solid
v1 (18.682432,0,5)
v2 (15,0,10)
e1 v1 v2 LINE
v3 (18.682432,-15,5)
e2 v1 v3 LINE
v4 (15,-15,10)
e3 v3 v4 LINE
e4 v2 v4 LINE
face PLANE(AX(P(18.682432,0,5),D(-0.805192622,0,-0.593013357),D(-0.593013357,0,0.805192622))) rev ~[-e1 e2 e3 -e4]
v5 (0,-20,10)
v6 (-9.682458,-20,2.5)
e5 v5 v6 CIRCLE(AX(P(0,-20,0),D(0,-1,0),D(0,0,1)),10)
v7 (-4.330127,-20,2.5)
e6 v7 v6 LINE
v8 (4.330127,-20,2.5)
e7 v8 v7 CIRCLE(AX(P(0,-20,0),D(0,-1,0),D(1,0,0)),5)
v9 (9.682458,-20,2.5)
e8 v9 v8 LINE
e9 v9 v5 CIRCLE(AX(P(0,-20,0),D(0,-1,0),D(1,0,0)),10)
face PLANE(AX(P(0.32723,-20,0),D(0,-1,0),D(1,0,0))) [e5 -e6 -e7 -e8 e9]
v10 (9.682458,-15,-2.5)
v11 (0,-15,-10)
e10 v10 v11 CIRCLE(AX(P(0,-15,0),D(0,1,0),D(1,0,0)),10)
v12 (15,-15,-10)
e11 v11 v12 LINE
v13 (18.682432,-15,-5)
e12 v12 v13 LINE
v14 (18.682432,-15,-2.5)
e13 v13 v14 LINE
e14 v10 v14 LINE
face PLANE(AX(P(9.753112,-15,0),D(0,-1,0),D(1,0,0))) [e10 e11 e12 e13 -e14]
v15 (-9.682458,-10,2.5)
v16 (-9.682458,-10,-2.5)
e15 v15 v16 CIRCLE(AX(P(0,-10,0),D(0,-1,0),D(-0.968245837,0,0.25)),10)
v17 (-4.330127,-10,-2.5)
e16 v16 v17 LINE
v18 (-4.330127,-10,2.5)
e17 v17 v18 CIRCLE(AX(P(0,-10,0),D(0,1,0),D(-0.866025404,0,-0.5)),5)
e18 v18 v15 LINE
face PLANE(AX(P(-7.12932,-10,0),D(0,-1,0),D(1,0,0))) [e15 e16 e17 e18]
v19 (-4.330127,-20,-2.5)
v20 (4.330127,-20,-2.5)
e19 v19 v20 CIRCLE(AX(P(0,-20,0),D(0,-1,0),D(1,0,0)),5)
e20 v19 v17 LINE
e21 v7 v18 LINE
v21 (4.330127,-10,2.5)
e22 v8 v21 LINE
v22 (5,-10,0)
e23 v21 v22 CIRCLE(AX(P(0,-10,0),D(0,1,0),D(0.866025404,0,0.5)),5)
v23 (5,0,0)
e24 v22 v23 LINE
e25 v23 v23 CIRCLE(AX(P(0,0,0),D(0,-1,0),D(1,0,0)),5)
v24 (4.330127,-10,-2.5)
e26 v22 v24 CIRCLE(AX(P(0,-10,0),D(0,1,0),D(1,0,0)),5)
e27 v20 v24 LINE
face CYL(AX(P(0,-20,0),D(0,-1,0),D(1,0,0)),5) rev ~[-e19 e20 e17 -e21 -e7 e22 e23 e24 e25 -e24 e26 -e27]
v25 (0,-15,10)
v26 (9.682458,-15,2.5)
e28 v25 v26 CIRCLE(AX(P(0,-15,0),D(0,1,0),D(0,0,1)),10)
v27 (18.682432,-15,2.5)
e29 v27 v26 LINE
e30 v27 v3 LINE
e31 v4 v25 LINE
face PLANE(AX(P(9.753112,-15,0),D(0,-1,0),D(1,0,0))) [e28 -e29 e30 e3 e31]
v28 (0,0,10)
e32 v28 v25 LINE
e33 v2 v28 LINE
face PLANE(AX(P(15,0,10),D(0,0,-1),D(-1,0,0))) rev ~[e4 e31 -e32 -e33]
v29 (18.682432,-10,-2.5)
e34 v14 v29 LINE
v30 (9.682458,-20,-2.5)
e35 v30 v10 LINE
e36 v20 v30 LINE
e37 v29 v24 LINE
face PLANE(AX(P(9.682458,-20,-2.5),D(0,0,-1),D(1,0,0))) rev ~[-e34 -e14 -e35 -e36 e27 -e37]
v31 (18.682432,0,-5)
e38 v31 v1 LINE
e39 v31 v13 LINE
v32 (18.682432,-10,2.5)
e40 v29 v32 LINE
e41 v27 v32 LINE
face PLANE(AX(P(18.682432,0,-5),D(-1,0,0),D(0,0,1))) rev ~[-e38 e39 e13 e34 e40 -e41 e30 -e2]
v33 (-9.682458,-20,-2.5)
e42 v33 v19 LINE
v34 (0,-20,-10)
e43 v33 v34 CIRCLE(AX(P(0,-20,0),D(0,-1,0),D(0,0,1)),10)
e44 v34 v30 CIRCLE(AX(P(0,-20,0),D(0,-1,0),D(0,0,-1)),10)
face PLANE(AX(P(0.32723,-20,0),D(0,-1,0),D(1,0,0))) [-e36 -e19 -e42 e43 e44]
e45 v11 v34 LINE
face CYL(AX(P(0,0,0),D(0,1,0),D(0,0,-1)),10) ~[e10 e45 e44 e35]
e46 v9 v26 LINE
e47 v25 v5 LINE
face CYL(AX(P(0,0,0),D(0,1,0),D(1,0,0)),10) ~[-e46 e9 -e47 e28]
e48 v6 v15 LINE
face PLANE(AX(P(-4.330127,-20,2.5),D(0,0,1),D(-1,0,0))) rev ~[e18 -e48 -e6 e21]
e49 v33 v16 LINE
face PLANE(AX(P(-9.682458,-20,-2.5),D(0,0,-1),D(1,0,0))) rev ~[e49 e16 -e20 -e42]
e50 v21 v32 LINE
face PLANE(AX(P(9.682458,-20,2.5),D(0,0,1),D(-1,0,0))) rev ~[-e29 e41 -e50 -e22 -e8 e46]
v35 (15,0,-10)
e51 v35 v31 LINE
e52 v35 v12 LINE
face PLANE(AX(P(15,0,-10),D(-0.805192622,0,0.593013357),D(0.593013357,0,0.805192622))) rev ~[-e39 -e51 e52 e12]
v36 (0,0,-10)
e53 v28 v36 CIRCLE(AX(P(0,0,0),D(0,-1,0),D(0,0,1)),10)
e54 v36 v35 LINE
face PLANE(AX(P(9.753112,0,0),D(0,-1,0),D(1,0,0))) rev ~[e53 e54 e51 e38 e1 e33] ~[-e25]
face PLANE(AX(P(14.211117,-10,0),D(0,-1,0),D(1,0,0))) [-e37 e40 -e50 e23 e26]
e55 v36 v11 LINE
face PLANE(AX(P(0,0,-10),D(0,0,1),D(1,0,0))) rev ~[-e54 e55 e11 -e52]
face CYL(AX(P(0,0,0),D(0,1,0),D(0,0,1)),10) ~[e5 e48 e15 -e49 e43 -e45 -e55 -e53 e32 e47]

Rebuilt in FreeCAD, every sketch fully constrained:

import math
import FreeCAD as App
import Part
import Sketcher
from FreeCAD import Vector

doc = App.newDocument("Part")
body = doc.addObject("PartDesign::Body", "Body")

# Sketch on XZ plane
sketch1 = body.newObject("Sketcher::SketchObject", "Sketch")
sketch1.AttachmentSupport = (doc.getObject("XZ_Plane"), [""])
sketch1.MapMode = "FlatFace"
sketch1.addGeometry([
    Part.ArcOfCircle(Part.Circle(Vector(0, 0, 0), Vector(0, 0, 1), 10), math.radians(-90), math.radians(0)),
    Part.ArcOfCircle(Part.Circle(Vector(0, 0, 0), Vector(0, 0, 1), 10), math.radians(0), math.radians(90)),
    Part.ArcOfCircle(Part.Circle(Vector(0, 0, 0), Vector(0, 0, 1), 10), math.radians(90), math.radians(270)),
], False)
sketch1.addConstraint([
    Sketcher.Constraint("Tangent", 0, 2, 1, 1),
    Sketcher.Constraint("Tangent", 1, 2, 2, 1),
    Sketcher.Constraint("Tangent", 2, 2, 0, 1),
    Sketcher.Constraint("Coincident", 0, 3, -1, 1),
    Sketcher.Constraint("PointOnObject", 0, 2, -1),
    Sketcher.Constraint("PointOnObject", 1, 2, -2),
    Sketcher.Constraint("PointOnObject", 2, 2, -2),
    Sketcher.Constraint("Radius", 0, 10.0),
])
pad1 = body.newObject("PartDesign::Pad", "Pad")
pad1.Profile = sketch1
pad1.Length = 20

# Sketch on XZ plane
sketch2 = body.newObject("Sketcher::SketchObject", "Sketch001")
sketch2.AttachmentSupport = (doc.getObject("XZ_Plane"), [""])
sketch2.MapMode = "FlatFace"
sketch2.addGeometry([
    Part.ArcOfCircle(Part.Circle(Vector(0, 0, 0), Vector(0, 0, 1), 10), math.radians(0), math.radians(90)),  # 0
    Part.ArcOfCircle(Part.Circle(Vector(0, 0, 0), Vector(0, 0, 1), 10), math.radians(-90), math.radians(0)),  # 1
    Part.LineSegment(Vector(0, -10, 0), Vector(15, -10, 0)),  # 2
    Part.LineSegment(Vector(15, -10, 0), Vector(19, -5, 0)),  # 3
    Part.LineSegment(Vector(19, -5, 0), Vector(19, 5, 0)),  # 4
    Part.LineSegment(Vector(19, 5, 0), Vector(15, 10, 0)),  # 5
    Part.LineSegment(Vector(15, 10, 0), Vector(0, 10, 0)),  # 6
], False)
sketch2.addConstraint([
    Sketcher.Constraint("Tangent", 0, 1, 1, 2),
    Sketcher.Constraint("Tangent", 1, 1, 2, 1),
    Sketcher.Constraint("Coincident", 2, 2, 3, 1),
    Sketcher.Constraint("Coincident", 3, 2, 4, 1),
    Sketcher.Constraint("Coincident", 4, 2, 5, 1),
    Sketcher.Constraint("Coincident", 5, 2, 6, 1),
    Sketcher.Constraint("Tangent", 6, 2, 0, 2),
    Sketcher.Constraint("Horizontal", 2),
    Sketcher.Constraint("Vertical", 4),
    Sketcher.Constraint("Horizontal", 6),
    Sketcher.Constraint("Coincident", 0, 3, -1, 1),
    Sketcher.Constraint("Equal", 0, 1),
    Sketcher.Constraint("PointOnObject", 0, 1, -1),
    Sketcher.Constraint("Vertical", 2, 2, 5, 2),
    Sketcher.Constraint("Equal", 3, 5),
    Sketcher.Constraint("Radius", 0, 10.0),
    Sketcher.Constraint("DistanceX", 2, 1, 2, 2, 15.0),
    Sketcher.Constraint("DistanceY", 4, 1, 4, 2, 10.0),
    Sketcher.Constraint("DistanceX", -1, 1, 3, 2, 18.682432),
])
pad2 = body.newObject("PartDesign::Pad", "Pad001")
pad2.Profile = sketch2
pad2.Length = 15

# Sketch on XZ plane
sketch3 = body.newObject("Sketcher::SketchObject", "Sketch002")
sketch3.AttachmentSupport = (doc.getObject("XZ_Plane"), [""])
sketch3.MapMode = "FlatFace"
sketch3.AttachmentOffset = App.Placement(Vector(0, 0, 20), App.Rotation())
sketch3.addGeometry(Part.Circle(Vector(0, 0, 0), Vector(0, 0, 1), 5), False)
sketch3.addConstraint([
    Sketcher.Constraint("Coincident", 0, 3, -1, 1),
    Sketcher.Constraint("Diameter", 0, 10.0),
])
pocket1 = body.newObject("PartDesign::Pocket", "Pocket")
pocket1.Profile = sketch3
pocket1.Type = "ThroughAll"

# Sketch on XZ plane
sketch4 = body.newObject("Sketcher::SketchObject", "Sketch003")
sketch4.AttachmentSupport = (doc.getObject("XZ_Plane"), [""])
sketch4.MapMode = "FlatFace"
sketch4.AttachmentOffset = App.Placement(Vector(0, 0, 20), App.Rotation())
sketch4.addGeometry([
    Part.ArcOfCircle(Part.Circle(Vector(0, 0, 0), Vector(0, 0, 1), 10), math.radians(0), math.radians(14.48)),  # 0
    Part.LineSegment(Vector(9.7, 2.5, 0), Vector(4.3, 2.5, 0)),  # 1
    Part.ArcOfCircle(Part.Circle(Vector(0, 0, 0), Vector(0, 0, 1), 5), math.radians(0), math.radians(30)),  # 2
    Part.ArcOfCircle(Part.Circle(Vector(0, 0, 0), Vector(0, 0, 1), 5), math.radians(-30), math.radians(0)),  # 3
    Part.LineSegment(Vector(4.3, -2.5, 0), Vector(9.7, -2.5, 0)),  # 4
    Part.ArcOfCircle(Part.Circle(Vector(0, 0, 0), Vector(0, 0, 1), 10), math.radians(-14.48), math.radians(0)),  # 5
    Part.LineSegment(Vector(-4.3, 2.5, 0), Vector(-9.7, 2.5, 0)),  # 6
    Part.ArcOfCircle(Part.Circle(Vector(0, 0, 0), Vector(0, 0, 1), 10), math.radians(166), math.radians(194)),  # 7
    Part.LineSegment(Vector(-9.7, -2.5, 0), Vector(-4.3, -2.5, 0)),  # 8
    Part.ArcOfCircle(Part.Circle(Vector(0, 0, 0), Vector(0, 0, 1), 5), math.radians(150), math.radians(210)),  # 9
], False)
sketch4.addConstraint([
    Sketcher.Constraint("Coincident", 0, 2, 1, 1),
    Sketcher.Constraint("Coincident", 1, 2, 2, 2),
    Sketcher.Constraint("Tangent", 2, 1, 3, 2),
    Sketcher.Constraint("Coincident", 3, 1, 4, 1),
    Sketcher.Constraint("Coincident", 4, 2, 5, 1),
    Sketcher.Constraint("Tangent", 5, 2, 0, 1),
    Sketcher.Constraint("Coincident", 6, 2, 7, 1),
    Sketcher.Constraint("Coincident", 7, 2, 8, 1),
    Sketcher.Constraint("Coincident", 8, 2, 9, 2),
    Sketcher.Constraint("Coincident", 9, 1, 6, 1),
    Sketcher.Constraint("Horizontal", 1),
    Sketcher.Constraint("Horizontal", 4),
    Sketcher.Constraint("Horizontal", 6),
    Sketcher.Constraint("Horizontal", 8),
    Sketcher.Constraint("Coincident", 0, 3, -1, 1),
    Sketcher.Constraint("Coincident", 2, 3, -1, 1),
    Sketcher.Constraint("Coincident", 7, 3, -1, 1),
    Sketcher.Constraint("Coincident", 9, 3, -1, 1),
    Sketcher.Constraint("Equal", 2, 3),
    Sketcher.Constraint("Equal", 0, 5),
    Sketcher.Constraint("Equal", 5, 7),
    Sketcher.Constraint("Equal", 3, 9),
    Sketcher.Constraint("PointOnObject", 2, 1, -1),
    Sketcher.Constraint("PointOnObject", 5, 2, -1),
    Sketcher.Constraint("Horizontal", 1, 2, 6, 2),
    Sketcher.Constraint("Horizontal", 4, 2, 7, 2),
    Sketcher.Constraint("Vertical", 1, 2, 3, 1),
    Sketcher.Constraint("Radius", 0, 10.0),
    Sketcher.Constraint("Radius", 2, 5.0),
    Sketcher.Constraint("DistanceY", 3, 1, 1, 2, 5.0),
])
pocket2 = body.newObject("PartDesign::Pocket", "Pocket001")
pocket2.Profile = sketch4
pocket2.Length = 10

# Sketch on XZ plane
sketch5 = body.newObject("Sketcher::SketchObject", "Sketch004")
sketch5.AttachmentSupport = (doc.getObject("XZ_Plane"), [""])
sketch5.MapMode = "FlatFace"
sketch5.AttachmentOffset = App.Placement(Vector(0, 0, 20), App.Rotation())
sketch5.addGeometry([
    Part.LineSegment(Vector(18.7, -2.5, 0), Vector(18.7, 2.5, 0)),  # 0
    Part.LineSegment(Vector(18.7, 2.5, 0), Vector(9.7, 2.5, 0)),  # 1
    Part.ArcOfCircle(Part.Circle(Vector(0, 0, 0), Vector(0, 0, 1), 10), math.radians(0), math.radians(14.48)),  # 2
    Part.ArcOfCircle(Part.Circle(Vector(0, 0, 0), Vector(0, 0, 1), 10), math.radians(-14.48), math.radians(0)),  # 3
    Part.LineSegment(Vector(9.7, -2.5, 0), Vector(18.7, -2.5, 0)),  # 4
], False)
sketch5.addConstraint([
    Sketcher.Constraint("Coincident", 0, 2, 1, 1),
    Sketcher.Constraint("Coincident", 1, 2, 2, 2),
    Sketcher.Constraint("Tangent", 2, 1, 3, 2),
    Sketcher.Constraint("Coincident", 3, 1, 4, 1),
    Sketcher.Constraint("Coincident", 4, 2, 0, 1),
    Sketcher.Constraint("Vertical", 0),
    Sketcher.Constraint("Horizontal", 1),
    Sketcher.Constraint("Horizontal", 4),
    Sketcher.Constraint("Coincident", 2, 3, -1, 1),
    Sketcher.Constraint("Equal", 2, 3),
    Sketcher.Constraint("PointOnObject", 2, 1, -1),
    Sketcher.Constraint("Vertical", 1, 2, 3, 1),
    Sketcher.Constraint("Radius", 2, 10.0),
    Sketcher.Constraint("DistanceY", 0, 1, 0, 2, 5.0),
    Sketcher.Constraint("DistanceX", 1, 2, 1, 1, 8.999973),
])
pocket3 = body.newObject("PartDesign::Pocket", "Pocket002")
pocket3.Profile = sketch5
pocket3.Length = 10

doc.recompute()
